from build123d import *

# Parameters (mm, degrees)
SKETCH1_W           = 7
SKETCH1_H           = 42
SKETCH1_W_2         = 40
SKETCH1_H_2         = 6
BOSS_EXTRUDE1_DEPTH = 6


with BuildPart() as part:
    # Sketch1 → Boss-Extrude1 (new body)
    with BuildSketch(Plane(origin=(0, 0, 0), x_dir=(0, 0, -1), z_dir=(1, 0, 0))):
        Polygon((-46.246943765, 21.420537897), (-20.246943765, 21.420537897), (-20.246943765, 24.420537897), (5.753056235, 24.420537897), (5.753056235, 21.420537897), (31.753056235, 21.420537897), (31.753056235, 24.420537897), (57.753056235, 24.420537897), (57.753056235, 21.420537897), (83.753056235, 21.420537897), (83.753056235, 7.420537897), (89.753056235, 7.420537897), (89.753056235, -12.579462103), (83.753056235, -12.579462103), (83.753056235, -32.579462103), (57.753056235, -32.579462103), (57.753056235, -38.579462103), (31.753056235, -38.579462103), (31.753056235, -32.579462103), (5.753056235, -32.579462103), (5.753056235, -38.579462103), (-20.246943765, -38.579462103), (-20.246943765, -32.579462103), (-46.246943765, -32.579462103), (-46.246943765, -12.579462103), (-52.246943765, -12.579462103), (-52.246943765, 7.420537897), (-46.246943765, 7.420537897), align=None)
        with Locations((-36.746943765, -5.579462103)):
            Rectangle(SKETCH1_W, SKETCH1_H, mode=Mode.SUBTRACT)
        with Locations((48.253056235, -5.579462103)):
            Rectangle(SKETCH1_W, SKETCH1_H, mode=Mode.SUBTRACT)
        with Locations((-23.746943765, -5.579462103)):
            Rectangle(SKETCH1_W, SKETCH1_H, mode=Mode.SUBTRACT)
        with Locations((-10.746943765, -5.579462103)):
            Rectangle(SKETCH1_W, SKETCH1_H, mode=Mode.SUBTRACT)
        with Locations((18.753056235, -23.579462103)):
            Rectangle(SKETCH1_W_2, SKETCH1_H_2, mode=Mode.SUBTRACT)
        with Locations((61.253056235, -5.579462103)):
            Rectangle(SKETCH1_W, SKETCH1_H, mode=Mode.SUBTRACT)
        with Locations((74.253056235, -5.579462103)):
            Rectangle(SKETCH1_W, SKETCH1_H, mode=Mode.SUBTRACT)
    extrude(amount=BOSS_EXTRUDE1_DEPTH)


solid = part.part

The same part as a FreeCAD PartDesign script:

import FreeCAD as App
import Part
import Sketcher
Q = App.Units.Quantity

doc = App.newDocument("Part")
body = doc.addObject("PartDesign::Body", "Body")

sketch1 = body.newObject("Sketcher::SketchObject", "Sketch")
sketch1.AttachmentSupport = (doc.getObject("YZ_Plane"), [""])
sketch1.MapMode = "FlatFace"
sketch1.addGeometry(Part.LineSegment(App.Vector(21.4, 20.2, 0), App.Vector(21.4, 46.2, 0)), False)
sketch1.addGeometry(Part.LineSegment(App.Vector(21.4, 46.2, 0), App.Vector(7.4, 46.2, 0)), False)
sketch1.addGeometry(Part.LineSegment(App.Vector(7.4, 46.2, 0), App.Vector(7.4, 52.2, 0)), False)
sketch1.addGeometry(Part.LineSegment(App.Vector(7.4, 52.2, 0), App.Vector(-12.6, 52.2, 0)), False)
sketch1.addGeometry(Part.LineSegment(App.Vector(-12.6, 52.2, 0), App.Vector(-12.6, 46.2, 0)), False)
sketch1.addGeometry(Part.LineSegment(App.Vector(-12.6, 46.2, 0), App.Vector(-32.6, 46.2, 0)), False)
sketch1.addGeometry(Part.LineSegment(App.Vector(-32.6, 46.2, 0), App.Vector(-32.6, 20.2, 0)), False)
sketch1.addGeometry(Part.LineSegment(App.Vector(-32.6, 20.2, 0), App.Vector(-38.6, 20.2, 0)), False)
sketch1.addGeometry(Part.LineSegment(App.Vector(-38.6, 20.2, 0), App.Vector(-38.6, -5.8, 0)), False)
sketch1.addGeometry(Part.LineSegment(App.Vector(-38.6, -5.8, 0), App.Vector(-32.6, -5.8, 0)), False)
sketch1.addGeometry(Part.LineSegment(App.Vector(-32.6, -5.8, 0), App.Vector(-32.6, -31.8, 0)), False)
sketch1.addGeometry(Part.LineSegment(App.Vector(-32.6, -31.8, 0), App.Vector(-38.6, -31.8, 0)), False)
sketch1.addGeometry(Part.LineSegment(App.Vector(-38.6, -31.8, 0), App.Vector(-38.6, -57.8, 0)), False)
sketch1.addGeometry(Part.LineSegment(App.Vector(-38.6, -57.8, 0), App.Vector(-32.6, -57.8, 0)), False)
sketch1.addGeometry(Part.LineSegment(App.Vector(-32.6, -57.8, 0), App.Vector(-32.6, -83.8, 0)), False)
sketch1.addGeometry(Part.LineSegment(App.Vector(-32.6, -83.8, 0), App.Vector(-12.6, -83.8, 0)), False)
sketch1.addGeometry(Part.LineSegment(App.Vector(-12.6, -83.8, 0), App.Vector(-12.6, -89.8, 0)), False)
sketch1.addGeometry(Part.LineSegment(App.Vector(-12.6, -89.8, 0), App.Vector(7.4, -89.8, 0)), False)
sketch1.addGeometry(Part.LineSegment(App.Vector(7.4, -89.8, 0), App.Vector(7.4, -83.8, 0)), False)
sketch1.addGeometry(Part.LineSegment(App.Vector(7.4, -83.8, 0), App.Vector(21.4, -83.8, 0)), False)
sketch1.addGeometry(Part.LineSegment(App.Vector(21.4, -83.8, 0), App.Vector(21.4, -57.8, 0)), False)
sketch1.addGeometry(Part.LineSegment(App.Vector(21.4, -57.8, 0), App.Vector(24.4, -57.8, 0)), False)
sketch1.addGeometry(Part.LineSegment(App.Vector(24.4, -57.8, 0), App.Vector(24.4, -31.8, 0)), False)
sketch1.addGeometry(Part.LineSegment(App.Vector(24.4, -31.8, 0), App.Vector(21.4, -31.8, 0)), False)
sketch1.addGeometry(Part.LineSegment(App.Vector(21.4, -31.8, 0), App.Vector(21.4, -5.8, 0)), False)
sketch1.addGeometry(Part.LineSegment(App.Vector(21.4, -5.8, 0), App.Vector(24.4, -5.8, 0)), False)
sketch1.addGeometry(Part.LineSegment(App.Vector(24.4, -5.8, 0), App.Vector(24.4, 20.2, 0)), False)
sketch1.addGeometry(Part.LineSegment(App.Vector(24.4, 20.2, 0), App.Vector(21.4, 20.2, 0)), False)
sketch1.addGeometry(Part.LineSegment(App.Vector(-26.6, 1.2, 0), App.Vector(-20.6, 1.2, 0)), False)
sketch1.addGeometry(Part.LineSegment(App.Vector(-20.6, 1.2, 0), App.Vector(-20.6, -38.8, 0)), False)
sketch1.addGeometry(Part.LineSegment(App.Vector(-20.6, -38.8, 0), App.Vector(-26.6, -38.8, 0)), False)
sketch1.addGeometry(Part.LineSegment(App.Vector(-26.6, -38.8, 0), App.Vector(-26.6, 1.2, 0)), False)
sketch1.addGeometry(Part.LineSegment(App.Vector(-26.6, -70.8, 0), App.Vector(15.4, -70.8, 0)), False)
sketch1.addGeometry(Part.LineSegment(App.Vector(15.4, -70.8, 0), App.Vector(15.4, -77.8, 0)), False)
sketch1.addGeometry(Part.LineSegment(App.Vector(15.4, -77.8, 0), App.Vector(-26.6, -77.8, 0)), False)
sketch1.addGeometry(Part.LineSegment(App.Vector(-26.6, -77.8, 0), App.Vector(-26.6, -70.8, 0)), False)
sketch1.addGeometry(Part.LineSegment(App.Vector(-26.6, -57.8, 0), App.Vector(15.4, -57.8, 0)), False)
sketch1.addGeometry(Part.LineSegment(App.Vector(15.4, -57.8, 0), App.Vector(15.4, -64.8, 0)), False)
sketch1.addGeometry(Part.LineSegment(App.Vector(15.4, -64.8, 0), App.Vector(-26.6, -64.8, 0)), False)
sketch1.addGeometry(Part.LineSegment(App.Vector(-26.6, -64.8, 0), App.Vector(-26.6, -57.8, 0)), False)
sketch1.addGeometry(Part.LineSegment(App.Vector(-26.6, -44.8, 0), App.Vector(15.4, -44.8, 0)), False)
sketch1.addGeometry(Part.LineSegment(App.Vector(15.4, -44.8, 0), App.Vector(15.4, -51.8, 0)), False)
sketch1.addGeometry(Part.LineSegment(App.Vector(15.4, -51.8, 0), App.Vector(-26.6, -51.8, 0)), False)
sketch1.addGeometry(Part.LineSegment(App.Vector(-26.6, -51.8, 0), App.Vector(-26.6, -44.8, 0)), False)
sketch1.addGeometry(Part.LineSegment(App.Vector(-26.6, 14.2, 0), App.Vector(15.4, 14.2, 0)), False)
sketch1.addGeometry(Part.LineSegment(App.Vector(15.4, 14.2, 0), App.Vector(15.4, 7.2, 0)), False)
sketch1.addGeometry(Part.LineSegment(App.Vector(15.4, 7.2, 0), App.Vector(-26.6, 7.2, 0)), False)
sketch1.addGeometry(Part.LineSegment(App.Vector(-26.6, 7.2, 0), App.Vector(-26.6, 14.2, 0)), False)
sketch1.addGeometry(Part.LineSegment(App.Vector(-26.6, 27.2, 0), App.Vector(15.4, 27.2, 0)), False)
sketch1.addGeometry(Part.LineSegment(App.Vector(15.4, 27.2, 0), App.Vector(15.4, 20.2, 0)), False)
sketch1.addGeometry(Part.LineSegment(App.Vector(15.4, 20.2, 0), App.Vector(-26.6, 20.2, 0)), False)
sketch1.addGeometry(Part.LineSegment(App.Vector(-26.6, 20.2, 0), App.Vector(-26.6, 27.2, 0)), False)
sketch1.addGeometry(Part.LineSegment(App.Vector(-26.6, 40.2, 0), App.Vector(15.4, 40.2, 0)), False)
sketch1.addGeometry(Part.LineSegment(App.Vector(15.4, 40.2, 0), App.Vector(15.4, 33.2, 0)), False)
sketch1.addGeometry(Part.LineSegment(App.Vector(15.4, 33.2, 0), App.Vector(-26.6, 33.2, 0)), False)
sketch1.addGeometry(Part.LineSegment(App.Vector(-26.6, 33.2, 0), App.Vector(-26.6, 40.2, 0)), False)
sketch1.addConstraint(Sketcher.Constraint("Coincident", 0, 2, 1, 1))
sketch1.addConstraint(Sketcher.Constraint("Coincident", 1, 2, 2, 1))
sketch1.addConstraint(Sketcher.Constraint("Coincident", 2, 2, 3, 1))
sketch1.addConstraint(Sketcher.Constraint("Coincident", 3, 2, 4, 1))
sketch1.addConstraint(Sketcher.Constraint("Coincident", 4, 2, 5, 1))
sketch1.addConstraint(Sketcher.Constraint("Coincident", 5, 2, 6, 1))
sketch1.addConstraint(Sketcher.Constraint("Coincident", 6, 2, 7, 1))
sketch1.addConstraint(Sketcher.Constraint("Coincident", 7, 2, 8, 1))
sketch1.addConstraint(Sketcher.Constraint("Coincident", 8, 2, 9, 1))
sketch1.addConstraint(Sketcher.Constraint("Coincident", 9, 2, 10, 1))
sketch1.addConstraint(Sketcher.Constraint("Coincident", 10, 2, 11, 1))
sketch1.addConstraint(Sketcher.Constraint("Coincident", 11, 2, 12, 1))
sketch1.addConstraint(Sketcher.Constraint("Coincident", 12, 2, 13, 1))
sketch1.addConstraint(Sketcher.Constraint("Coincident", 13, 2, 14, 1))
sketch1.addConstraint(Sketcher.Constraint("Coincident", 14, 2, 15, 1))
sketch1.addConstraint(Sketcher.Constraint("Coincident", 15, 2, 16, 1))
sketch1.addConstraint(Sketcher.Constraint("Coincident", 16, 2, 17, 1))
sketch1.addConstraint(Sketcher.Constraint("Coincident", 17, 2, 18, 1))
sketch1.addConstraint(Sketcher.Constraint("Coincident", 18, 2, 19, 1))
sketch1.addConstraint(Sketcher.Constraint("Coincident", 19, 2, 20, 1))
sketch1.addConstraint(Sketcher.Constraint("Coincident", 20, 2, 21, 1))
sketch1.addConstraint(Sketcher.Constraint("Coincident", 21, 2, 22, 1))
sketch1.addConstraint(Sketcher.Constraint("Coincident", 22, 2, 23, 1))
sketch1.addConstraint(Sketcher.Constraint("Coincident", 23, 2, 24, 1))
sketch1.addConstraint(Sketcher.Constraint("Coincident", 24, 2, 25, 1))
sketch1.addConstraint(Sketcher.Constraint("Coincident", 25, 2, 26, 1))
sketch1.addConstraint(Sketcher.Constraint("Coincident", 26, 2, 27, 1))
sketch1.addConstraint(Sketcher.Constraint("Coincident", 27, 2, 0, 1))
sketch1.addConstraint(Sketcher.Constraint("Coincident", 28, 2, 29, 1))
sketch1.addConstraint(Sketcher.Constraint("Coincident", 29, 2, 30, 1))
sketch1.addConstraint(Sketcher.Constraint("Coincident", 30, 2, 31, 1))
sketch1.addConstraint(Sketcher.Constraint("Coincident", 31, 2, 28, 1))
sketch1.addConstraint(Sketcher.Constraint("Coincident", 32, 2, 33, 1))
sketch1.addConstraint(Sketcher.Constraint("Coincident", 33, 2, 34, 1))
sketch1.addConstraint(Sketcher.Constraint("Coincident", 34, 2, 35, 1))
sketch1.addConstraint(Sketcher.Constraint("Coincident", 35, 2, 32, 1))
sketch1.addConstraint(Sketcher.Constraint("Coincident", 36, 2, 37, 1))
sketch1.addConstraint(Sketcher.Constraint("Coincident", 37, 2, 38, 1))
sketch1.addConstraint(Sketcher.Constraint("Coincident", 38, 2, 39, 1))
sketch1.addConstraint(Sketcher.Constraint("Coincident", 39, 2, 36, 1))
sketch1.addConstraint(Sketcher.Constraint("Coincident", 40, 2, 41, 1))
sketch1.addConstraint(Sketcher.Constraint("Coincident", 41, 2, 42, 1))
sketch1.addConstraint(Sketcher.Constraint("Coincident", 42, 2, 43, 1))
sketch1.addConstraint(Sketcher.Constraint("Coincident", 43, 2, 40, 1))
sketch1.addConstraint(Sketcher.Constraint("Coincident", 44, 2, 45, 1))
sketch1.addConstraint(Sketcher.Constraint("Coincident", 45, 2, 46, 1))
sketch1.addConstraint(Sketcher.Constraint("Coincident", 46, 2, 47, 1))
sketch1.addConstraint(Sketcher.Constraint("Coincident", 47, 2, 44, 1))
sketch1.addConstraint(Sketcher.Constraint("Coincident", 48, 2, 49, 1))
sketch1.addConstraint(Sketcher.Constraint("Coincident", 49, 2, 50, 1))
sketch1.addConstraint(Sketcher.Constraint("Coincident", 50, 2, 51, 1))
sketch1.addConstraint(Sketcher.Constraint("Coincident", 51, 2, 48, 1))
sketch1.addConstraint(Sketcher.Constraint("Coincident", 52, 2, 53, 1))
sketch1.addConstraint(Sketcher.Constraint("Coincident", 53, 2, 54, 1))
sketch1.addConstraint(Sketcher.Constraint("Coincident", 54, 2, 55, 1))
sketch1.addConstraint(Sketcher.Constraint("Coincident", 55, 2, 52, 1))
sketch1.addConstraint(Sketcher.Constraint("Vertical", 0))
sketch1.addConstraint(Sketcher.Constraint("Horizontal", 1))
sketch1.addConstraint(Sketcher.Constraint("Vertical", 2))
sketch1.addConstraint(Sketcher.Constraint("Horizontal", 3))
sketch1.addConstraint(Sketcher.Constraint("Vertical", 4))
sketch1.addConstraint(Sketcher.Constraint("Horizontal", 5))
sketch1.addConstraint(Sketcher.Constraint("Vertical", 6))
sketch1.addConstraint(Sketcher.Constraint("Horizontal", 7))
sketch1.addConstraint(Sketcher.Constraint("Vertical", 8))
sketch1.addConstraint(Sketcher.Constraint("Horizontal", 9))
sketch1.addConstraint(Sketcher.Constraint("Vertical", 10))
sketch1.addConstraint(Sketcher.Constraint("Horizontal", 11))
sketch1.addConstraint(Sketcher.Constraint("Vertical", 12))
sketch1.addConstraint(Sketcher.Constraint("Horizontal", 13))
sketch1.addConstraint(Sketcher.Constraint("Vertical", 14))
sketch1.addConstraint(Sketcher.Constraint("Horizontal", 15))
sketch1.addConstraint(Sketcher.Constraint("Vertical", 16))
sketch1.addConstraint(Sketcher.Constraint("Horizontal", 17))
sketch1.addConstraint(Sketcher.Constraint("Vertical", 18))
sketch1.addConstraint(Sketcher.Constraint("Horizontal", 19))
sketch1.addConstraint(Sketcher.Constraint("Vertical", 20))
sketch1.addConstraint(Sketcher.Constraint("Horizontal", 21))
sketch1.addConstraint(Sketcher.Constraint("Vertical", 22))
sketch1.addConstraint(Sketcher.Constraint("Horizontal", 23))
sketch1.addConstraint(Sketcher.Constraint("Vertical", 24))
sketch1.addConstraint(Sketcher.Constraint("Horizontal", 25))
sketch1.addConstraint(Sketcher.Constraint("Vertical", 26))
sketch1.addConstraint(Sketcher.Constraint("Horizontal", 27))
sketch1.addConstraint(Sketcher.Constraint("Horizontal", 28))
sketch1.addConstraint(Sketcher.Constraint("Vertical", 29))
sketch1.addConstraint(Sketcher.Constraint("Horizontal", 30))
sketch1.addConstraint(Sketcher.Constraint("Vertical", 31))
sketch1.addConstraint(Sketcher.Constraint("Horizontal", 32))
sketch1.addConstraint(Sketcher.Constraint("Vertical", 33))
sketch1.addConstraint(Sketcher.Constraint("Horizontal", 34))
sketch1.addConstraint(Sketcher.Constraint("Vertical", 35))
sketch1.addConstraint(Sketcher.Constraint("Horizontal", 36))
sketch1.addConstraint(Sketcher.Constraint("Vertical", 37))
sketch1.addConstraint(Sketcher.Constraint("Horizontal", 38))
sketch1.addConstraint(Sketcher.Constraint("Vertical", 39))
sketch1.addConstraint(Sketcher.Constraint("Horizontal", 40))
sketch1.addConstraint(Sketcher.Constraint("Vertical", 41))
sketch1.addConstraint(Sketcher.Constraint("Horizontal", 42))
sketch1.addConstraint(Sketcher.Constraint("Vertical", 43))
sketch1.addConstraint(Sketcher.Constraint("Horizontal", 44))
sketch1.addConstraint(Sketcher.Constraint("Vertical", 45))
sketch1.addConstraint(Sketcher.Constraint("Horizontal", 46))
sketch1.addConstraint(Sketcher.Constraint("Vertical", 47))
sketch1.addConstraint(Sketcher.Constraint("Horizontal", 48))
sketch1.addConstraint(Sketcher.Constraint("Vertical", 49))
sketch1.addConstraint(Sketcher.Constraint("Horizontal", 50))
sketch1.addConstraint(Sketcher.Constraint("Vertical", 51))
sketch1.addConstraint(Sketcher.Constraint("Horizontal", 52))
sketch1.addConstraint(Sketcher.Constraint("Vertical", 53))
sketch1.addConstraint(Sketcher.Constraint("Horizontal", 54))
sketch1.addConstraint(Sketcher.Constraint("Vertical", 55))
sketch1.addConstraint(Sketcher.Constraint("Horizontal", 1, 2, 4, 2))
sketch1.addConstraint(Sketcher.Constraint("Horizontal", 15, 2, 18, 2))
sketch1.addConstraint(Sketcher.Constraint("Horizontal", 13, 2, 20, 2))
sketch1.addConstraint(Sketcher.Constraint("Horizontal", 11, 2, 22, 2))
sketch1.addConstraint(Sketcher.Constraint("Horizontal", 9, 2, 24, 2))
sketch1.addConstraint(Sketcher.Constraint("Horizontal", 7, 2, 26, 2))
sketch1.addConstraint(Sketcher.Constraint("Horizontal", 21, 2, 36, 2))
sketch1.addConstraint(Sketcher.Constraint("Horizontal", 27, 2, 49, 2))
sketch1.addConstraint(Sketcher.Constraint("Vertical", 6, 2, 9, 2))
sketch1.addConstraint(Sketcher.Constraint("Vertical", 8, 2, 11, 2))
sketch1.addConstraint(Sketcher.Constraint("Vertical", 10, 2, 13, 2))
sketch1.addConstraint(Sketcher.Constraint("Vertical", 4, 2, 15, 2))
sketch1.addConstraint(Sketcher.Constraint("Vertical", 2, 2, 17, 2))
sketch1.addConstraint(Sketcher.Constraint("Vertical", 0, 2, 19, 2))
sketch1.addConstraint(Sketcher.Constraint("Vertical", 20, 2, 23, 2))
sketch1.addConstraint(Sketcher.Constraint("Vertical", 22, 2, 25, 2))
sketch1.addConstraint(Sketcher.Constraint("Vertical", 31, 2, 34, 2))
sketch1.addConstraint(Sketcher.Constraint("Vertical", 33, 2, 36, 2))
sketch1.addConstraint(Sketcher.Constraint("Vertical", 35, 2, 38, 2))
sketch1.addConstraint(Sketcher.Constraint("Vertical", 37, 2, 40, 2))
sketch1.addConstraint(Sketcher.Constraint("Vertical", 39, 2, 42, 2))
sketch1.addConstraint(Sketcher.Constraint("Vertical", 41, 2, 44, 2))
sketch1.addConstraint(Sketcher.Constraint("Vertical", 43, 2, 46, 2))
sketch1.addConstraint(Sketcher.Constraint("Vertical", 45, 2, 48, 2))
sketch1.addConstraint(Sketcher.Constraint("Vertical", 47, 2, 50, 2))
sketch1.addConstraint(Sketcher.Constraint("Vertical", 49, 2, 52, 2))
sketch1.addConstraint(Sketcher.Constraint("Vertical", 51, 2, 54, 2))
sketch1.addConstraint(Sketcher.Constraint("Equal", 3, 5))
sketch1.addConstraint(Sketcher.Constraint("Equal", 13, 28))
sketch1.addConstraint(Sketcher.Constraint("Equal", 30, 2))
sketch1.addConstraint(Sketcher.Constraint("Equal", 6, 8))
sketch1.addConstraint(Sketcher.Constraint("Equal", 8, 10))
sketch1.addConstraint(Sketcher.Constraint("Equal", 10, 12))
sketch1.addConstraint(Sketcher.Constraint("Equal", 12, 14))
sketch1.addConstraint(Sketcher.Constraint("Equal", 4, 16))
sketch1.addConstraint(Sketcher.Constraint("Equal", 35, 37))
sketch1.addConstraint(Sketcher.Constraint("Equal", 39, 41))
sketch1.addConstraint(Sketcher.Constraint("Equal", 43, 45))
sketch1.addConstraint(Sketcher.Constraint("Equal", 47, 49))
sketch1.addConstraint(Sketcher.Constraint("Equal", 51, 53))
sketch1.addConstraint(Sketcher.Constraint("DistanceX", 1, 2, 1, 1, Q("14 mm")))
sketch1.addConstraint(Sketcher.Constraint("DistanceX", 3, 2, 3, 1, Q("20 mm")))
sketch1.addConstraint(Sketcher.Constraint("DistanceX", 7, 2, 7, 1, Q("6 mm")))
sketch1.addConstraint(Sketcher.Constraint("DistanceX", 21, 1, 21, 2, Q("3 mm")))
sketch1.addConstraint(Sketcher.Constraint("DistanceX", 32, 1, 32, 2, Q("42 mm")))
sketch1.addConstraint(Sketcher.Constraint("DistanceY", 0, 1, 0, 2, Q("26 mm")))
sketch1.addConstraint(Sketcher.Constraint("DistanceY", 29, 2, 29, 1, Q("40 mm")))
sketch1.addConstraint(Sketcher.Constraint("DistanceY", 33, 2, 33, 1, Q("7 mm")))
sketch1.addConstraint(Sketcher.Constraint("DistanceX", 9, 2, 28, 2, Q("12 mm")))
sketch1.addConstraint(Sketcher.Constraint("DistanceY", 9, 2, 28, 2, Q("7 mm")))
sketch1.addConstraint(Sketcher.Constraint("DistanceY", 19, 2, 32, 2, Q("13 mm")))
sketch1.addConstraint(Sketcher.Constraint("DistanceY", 36, 2, 40, 2, Q("13 mm")))
sketch1.addConstraint(Sketcher.Constraint("DistanceY", 44, 2, 27, 2, Q("6 mm")))
sketch1.addConstraint(Sketcher.Constraint("DistanceY", 52, 2, 0, 2, Q("6 mm")))
sketch1.addConstraint(Sketcher.Constraint("DistanceX", -1, 1, 0, 2, Q("21.420538 mm")))
sketch1.addConstraint(Sketcher.Constraint("DistanceY", -1, 1, 0, 2, Q("46.246944 mm")))
pad1 = body.newObject("PartDesign::Pad", "Pad")
pad1.Profile = sketch1
pad1.Length = 6

doc.recompute()
